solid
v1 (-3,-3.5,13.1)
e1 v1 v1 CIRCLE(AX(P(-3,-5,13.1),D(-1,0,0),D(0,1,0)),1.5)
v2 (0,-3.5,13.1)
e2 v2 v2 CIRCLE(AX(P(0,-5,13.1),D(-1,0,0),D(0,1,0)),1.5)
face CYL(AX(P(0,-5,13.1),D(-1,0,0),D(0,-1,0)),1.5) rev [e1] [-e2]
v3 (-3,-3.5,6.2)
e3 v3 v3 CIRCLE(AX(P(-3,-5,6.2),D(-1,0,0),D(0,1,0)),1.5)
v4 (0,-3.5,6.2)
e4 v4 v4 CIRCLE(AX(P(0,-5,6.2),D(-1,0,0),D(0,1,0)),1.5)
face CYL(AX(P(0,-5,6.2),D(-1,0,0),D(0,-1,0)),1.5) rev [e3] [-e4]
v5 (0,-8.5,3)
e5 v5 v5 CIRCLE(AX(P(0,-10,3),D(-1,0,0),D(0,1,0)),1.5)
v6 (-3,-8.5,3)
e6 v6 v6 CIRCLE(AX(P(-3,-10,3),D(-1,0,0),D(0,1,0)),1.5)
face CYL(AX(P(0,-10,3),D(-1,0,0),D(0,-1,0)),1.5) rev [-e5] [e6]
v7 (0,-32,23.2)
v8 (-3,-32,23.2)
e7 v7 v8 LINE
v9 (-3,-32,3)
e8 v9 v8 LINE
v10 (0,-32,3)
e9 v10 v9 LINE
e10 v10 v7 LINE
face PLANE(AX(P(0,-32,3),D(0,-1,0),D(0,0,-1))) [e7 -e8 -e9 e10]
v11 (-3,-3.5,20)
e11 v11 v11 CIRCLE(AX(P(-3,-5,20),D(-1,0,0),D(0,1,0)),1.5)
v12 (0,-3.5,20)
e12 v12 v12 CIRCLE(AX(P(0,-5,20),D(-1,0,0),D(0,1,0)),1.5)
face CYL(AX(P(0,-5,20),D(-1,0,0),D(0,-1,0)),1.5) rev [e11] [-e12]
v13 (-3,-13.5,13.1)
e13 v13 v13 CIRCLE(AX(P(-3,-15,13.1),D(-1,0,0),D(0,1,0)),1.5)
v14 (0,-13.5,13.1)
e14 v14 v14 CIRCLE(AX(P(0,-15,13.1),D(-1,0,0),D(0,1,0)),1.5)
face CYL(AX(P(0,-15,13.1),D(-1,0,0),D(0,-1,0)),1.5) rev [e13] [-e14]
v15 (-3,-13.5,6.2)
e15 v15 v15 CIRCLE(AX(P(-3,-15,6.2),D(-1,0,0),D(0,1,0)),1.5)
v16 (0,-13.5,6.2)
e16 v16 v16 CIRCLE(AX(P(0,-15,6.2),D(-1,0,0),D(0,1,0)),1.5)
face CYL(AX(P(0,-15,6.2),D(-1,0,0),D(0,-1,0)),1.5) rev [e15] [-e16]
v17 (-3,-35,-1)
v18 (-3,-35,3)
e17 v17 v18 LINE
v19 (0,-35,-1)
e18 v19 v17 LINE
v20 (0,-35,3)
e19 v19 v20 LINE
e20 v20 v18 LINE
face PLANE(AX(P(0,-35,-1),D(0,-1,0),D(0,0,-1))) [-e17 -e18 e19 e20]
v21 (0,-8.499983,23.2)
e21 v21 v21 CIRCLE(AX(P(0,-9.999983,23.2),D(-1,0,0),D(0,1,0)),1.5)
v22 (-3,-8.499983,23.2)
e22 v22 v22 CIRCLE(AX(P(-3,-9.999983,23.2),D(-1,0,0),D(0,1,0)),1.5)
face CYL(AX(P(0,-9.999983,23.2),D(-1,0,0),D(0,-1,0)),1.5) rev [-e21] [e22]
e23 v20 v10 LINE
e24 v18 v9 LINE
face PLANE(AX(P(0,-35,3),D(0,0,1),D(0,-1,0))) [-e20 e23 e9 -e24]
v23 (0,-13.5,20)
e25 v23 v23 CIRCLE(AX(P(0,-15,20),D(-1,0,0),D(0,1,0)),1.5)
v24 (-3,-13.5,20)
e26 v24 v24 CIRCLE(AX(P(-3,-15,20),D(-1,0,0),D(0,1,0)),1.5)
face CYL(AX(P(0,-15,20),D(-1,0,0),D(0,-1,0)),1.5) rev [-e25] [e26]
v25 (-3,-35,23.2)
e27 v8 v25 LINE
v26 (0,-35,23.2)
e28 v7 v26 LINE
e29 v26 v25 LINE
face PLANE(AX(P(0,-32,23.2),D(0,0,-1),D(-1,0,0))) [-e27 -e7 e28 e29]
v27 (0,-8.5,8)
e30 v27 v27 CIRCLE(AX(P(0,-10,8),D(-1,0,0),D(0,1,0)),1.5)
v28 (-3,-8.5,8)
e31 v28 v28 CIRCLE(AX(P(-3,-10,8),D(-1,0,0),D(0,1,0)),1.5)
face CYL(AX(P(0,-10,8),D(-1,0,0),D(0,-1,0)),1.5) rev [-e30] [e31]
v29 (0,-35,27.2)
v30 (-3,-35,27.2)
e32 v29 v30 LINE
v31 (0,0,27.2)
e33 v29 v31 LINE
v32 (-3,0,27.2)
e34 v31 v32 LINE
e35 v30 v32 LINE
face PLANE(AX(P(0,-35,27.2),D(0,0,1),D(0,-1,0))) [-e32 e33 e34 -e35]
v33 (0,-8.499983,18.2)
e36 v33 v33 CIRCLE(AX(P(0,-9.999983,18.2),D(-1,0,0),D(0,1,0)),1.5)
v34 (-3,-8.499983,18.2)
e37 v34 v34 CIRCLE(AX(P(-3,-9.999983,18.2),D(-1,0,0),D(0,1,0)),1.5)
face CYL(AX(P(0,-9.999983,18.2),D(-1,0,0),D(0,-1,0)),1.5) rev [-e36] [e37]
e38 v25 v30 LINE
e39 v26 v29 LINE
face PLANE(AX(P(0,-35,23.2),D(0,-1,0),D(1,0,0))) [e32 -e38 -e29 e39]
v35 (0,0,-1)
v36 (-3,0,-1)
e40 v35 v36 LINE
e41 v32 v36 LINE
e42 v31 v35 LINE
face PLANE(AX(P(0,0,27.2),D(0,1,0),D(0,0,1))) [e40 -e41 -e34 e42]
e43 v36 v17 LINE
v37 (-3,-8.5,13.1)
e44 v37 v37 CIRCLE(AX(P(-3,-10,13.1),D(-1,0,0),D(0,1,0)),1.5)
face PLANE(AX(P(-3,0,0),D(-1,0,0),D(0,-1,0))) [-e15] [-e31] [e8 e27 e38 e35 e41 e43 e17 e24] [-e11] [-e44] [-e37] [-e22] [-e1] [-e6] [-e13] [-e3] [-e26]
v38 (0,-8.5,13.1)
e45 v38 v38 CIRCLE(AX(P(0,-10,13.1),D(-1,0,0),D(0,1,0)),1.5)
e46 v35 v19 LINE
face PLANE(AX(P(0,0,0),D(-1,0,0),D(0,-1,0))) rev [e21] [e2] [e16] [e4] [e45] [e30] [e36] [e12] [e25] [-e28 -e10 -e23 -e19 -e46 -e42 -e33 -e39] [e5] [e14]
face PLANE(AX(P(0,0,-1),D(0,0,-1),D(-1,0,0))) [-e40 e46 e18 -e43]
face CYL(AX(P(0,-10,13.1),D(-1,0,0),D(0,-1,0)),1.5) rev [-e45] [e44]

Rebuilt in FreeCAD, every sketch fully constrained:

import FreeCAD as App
import Part
import Sketcher
Q = App.Units.Quantity


def add_polygon(sketch, points):
    """Adds a closed chain of lines whose ends are joined by coincident constraints."""
    first, n = sketch.GeometryCount, len(points)
    for a, b in zip(points, points[1:] + points[:1]):
        sketch.addGeometry(Part.LineSegment(App.Vector(*a, 0), App.Vector(*b, 0)), False)
    for i in range(n):
        sketch.addConstraint(Sketcher.Constraint("Coincident", first + i, 2, first + (i + 1) % n, 1))

doc = App.newDocument("Part")
body = doc.addObject("PartDesign::Body", "Body")

# Sketch on YZ plane
sketch1 = body.newObject("Sketcher::SketchObject", "Sketch")
sketch1.AttachmentSupport = (doc.getObject("YZ_Plane"), [""])
sketch1.MapMode = "FlatFace"
sketch1.AttachmentOffset = App.Placement(App.Vector(0, 0, -3), App.Rotation())
add_polygon(sketch1, [(-35, 27.2), (0, 27.2), (0, -1), (-35, -1), (-35, 3), (-32, 3), (-32, 23.2), (-35, 23.2)])  # lines 0-7
sketch1.addGeometry(Part.Circle(App.Vector(-5, 6.2, 0), App.Vector(0, 0, 1), 1.5), False)  # 8
sketch1.addGeometry(Part.Circle(App.Vector(-10, 3, 0), App.Vector(0, 0, 1), 1.5), False)  # 9
sketch1.addGeometry(Part.Circle(App.Vector(-15, 6.2, 0), App.Vector(0, 0, 1), 1.5), False)  # 10
sketch1.addGeometry(Part.Circle(App.Vector(-10, 8, 0), App.Vector(0, 0, 1), 1.5), False)  # 11
sketch1.addGeometry(Part.Circle(App.Vector(-5, 13.1, 0), App.Vector(0, 0, 1), 1.5), False)  # 12
sketch1.addGeometry(Part.Circle(App.Vector(-10, 18.2, 0), App.Vector(0, 0, 1), 1.5), False)  # 13
sketch1.addGeometry(Part.Circle(App.Vector(-5, 20, 0), App.Vector(0, 0, 1), 1.5), False)  # 14
sketch1.addGeometry(Part.Circle(App.Vector(-10, 23.2, 0), App.Vector(0, 0, 1), 1.5), False)  # 15
sketch1.addGeometry(Part.Circle(App.Vector(-10, 13.1, 0), App.Vector(0, 0, 1), 1.5), False)  # 16
sketch1.addGeometry(Part.Circle(App.Vector(-15, 13.1, 0), App.Vector(0, 0, 1), 1.5), False)  # 17
sketch1.addGeometry(Part.Circle(App.Vector(-15, 20, 0), App.Vector(0, 0, 1), 1.5), False)  # 18
sketch1.addConstraint([
    Sketcher.Constraint("Horizontal", 0),
    Sketcher.Constraint("Vertical", 1),
    Sketcher.Constraint("Horizontal", 2),
    Sketcher.Constraint("Vertical", 3),
    Sketcher.Constraint("Horizontal", 4),
    Sketcher.Constraint("Vertical", 5),
    Sketcher.Constraint("Horizontal", 6),
    Sketcher.Constraint("Vertical", 7),
    Sketcher.Constraint("Equal", 8, 9),
    Sketcher.Constraint("Equal", 9, 10),
    Sketcher.Constraint("Equal", 10, 11),
    Sketcher.Constraint("Equal", 11, 12),
    Sketcher.Constraint("Equal", 12, 13),
    Sketcher.Constraint("Equal", 13, 14),
    Sketcher.Constraint("Equal", 14, 15),
    Sketcher.Constraint("Equal", 15, 16),
    Sketcher.Constraint("Equal", 16, 17),
    Sketcher.Constraint("Equal", 17, 18),
    Sketcher.Constraint("PointOnObject", 0, 2, -2),
    Sketcher.Constraint("Horizontal", 8, 3, 10, 3),
    Sketcher.Constraint("Horizontal", 12, 3, 16, 3),
    Sketcher.Constraint("Horizontal", 16, 3, 17, 3),
    Sketcher.Constraint("Horizontal", 14, 3, 18, 3),
    Sketcher.Constraint("Horizontal", 9, 3, 3, 2),
    Sketcher.Constraint("Horizontal", 15, 3, 5, 2),
    Sketcher.Constraint("Vertical", 9, 3, 11, 3),
    Sketcher.Constraint("Vertical", 8, 3, 12, 3),
    Sketcher.Constraint("Vertical", 12, 3, 14, 3),
    Sketcher.Constraint("Vertical", 13, 3, 15, 3),
    Sketcher.Constraint("Vertical", 11, 3, 16, 3),
    Sketcher.Constraint("Vertical", 10, 3, 17, 3),
    Sketcher.Constraint("Vertical", 17, 3, 18, 3),
    Sketcher.Constraint("Vertical", 3, 2, 6, 2),
    Sketcher.Constraint("Equal", 3, 7),
    Sketcher.Constraint("Diameter", 8, Q("3 mm")),
    Sketcher.Constraint("DistanceX", 0, 1, 0, 2, Q("35 mm")),
    Sketcher.Constraint("DistanceX", 4, 1, 4, 2, Q("3 mm")),
    Sketcher.Constraint("DistanceY", 3, 1, 3, 2, Q("4 mm")),
    Sketcher.Constraint("DistanceY", 1, 2, 1, 1, Q("28.2 mm")),
    Sketcher.Constraint("DistanceX", 8, 3, -1, 1, Q("5 mm")),
    Sketcher.Constraint("DistanceX", 9, 3, -1, 1, Q("10 mm")),
    Sketcher.Constraint("DistanceY", -1, 1, 9, 3, Q("3 mm")),
    Sketcher.Constraint("DistanceX", 10, 3, -1, 1, Q("15 mm")),
    Sketcher.Constraint("DistanceY", -1, 1, 11, 3, Q("8 mm")),
    Sketcher.Constraint("DistanceY", -1, 1, 14, 3, Q("20 mm")),
    Sketcher.Constraint("DistanceY", 8, 3, 13, 3, Q("12 mm")),
    Sketcher.Constraint("DistanceY", 13, 3, 15, 3, Q("5 mm")),
    Sketcher.Constraint("DistanceY", -1, 1, 12, 3, Q("13.1 mm")),
    Sketcher.Constraint("DistanceX", 13, 3, -1, 1, Q("9.999983 mm")),
])
pad1 = body.newObject("PartDesign::Pad", "Pad")
pad1.Profile = sketch1
pad1.Length = 3

doc.recompute()
